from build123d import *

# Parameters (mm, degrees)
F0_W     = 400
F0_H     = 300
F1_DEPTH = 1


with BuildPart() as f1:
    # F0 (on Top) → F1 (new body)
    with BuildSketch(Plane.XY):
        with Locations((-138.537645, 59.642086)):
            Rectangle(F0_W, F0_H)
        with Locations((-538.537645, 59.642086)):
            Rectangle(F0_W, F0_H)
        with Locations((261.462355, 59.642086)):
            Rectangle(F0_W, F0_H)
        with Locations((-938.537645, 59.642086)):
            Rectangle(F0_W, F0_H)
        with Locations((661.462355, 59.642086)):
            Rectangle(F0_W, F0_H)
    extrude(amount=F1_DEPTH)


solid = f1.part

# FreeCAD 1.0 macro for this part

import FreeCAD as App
import Part
import Sketcher

doc = App.newDocument("Part")
body = doc.addObject("PartDesign::Body", "Body")

# Sketch on XY plane
sketch1 = doc.addObject("Sketcher::SketchObject", "Sketch")
body.addObject(sketch1)
sketch1.AttachmentSupport = (doc.XY_Plane, [""])
sketch1.MapMode = "FlatFace"
sketch1.addGeometry([
    Part.LineSegment(App.Vector(-1139, 210, 0), App.Vector(-1139, -90, 0)),
    Part.LineSegment(App.Vector(-1139, -90, 0), App.Vector(861, -90, 0)),
    Part.LineSegment(App.Vector(861, -90, 0), App.Vector(861, 210, 0)),
    Part.LineSegment(App.Vector(861, 210, 0), App.Vector(-1139, 210, 0)),
], False)
sketch1.addConstraint([
    Sketcher.Constraint("Coincident", 0, 2, 1, 1),
    Sketcher.Constraint("Coincident", 1, 2, 2, 1),
    Sketcher.Constraint("Coincident", 2, 2, 3, 1),
    Sketcher.Constraint("Coincident", 3, 2, 0, 1),
    Sketcher.Constraint("Vertical", 0),
    Sketcher.Constraint("Horizontal", 1),
    Sketcher.Constraint("Vertical", 2),
    Sketcher.Constraint("Horizontal", 3),
    Sketcher.Constraint("DistanceX", 1, 1, 1, 2, 2000.0),
    Sketcher.Constraint("DistanceY", 0, 2, 0, 1, 300.0),
    Sketcher.Constraint("DistanceX", 0, 2, -1, 1, 1138.537645),
    Sketcher.Constraint("DistanceY", 0, 2, -1, 1, 90.357914),
])
pad1 = doc.addObject("PartDesign::Pad", "Pad")
body.addObject(pad1)
pad1.Profile = sketch1
pad1.Length = 1

doc.recompute()
